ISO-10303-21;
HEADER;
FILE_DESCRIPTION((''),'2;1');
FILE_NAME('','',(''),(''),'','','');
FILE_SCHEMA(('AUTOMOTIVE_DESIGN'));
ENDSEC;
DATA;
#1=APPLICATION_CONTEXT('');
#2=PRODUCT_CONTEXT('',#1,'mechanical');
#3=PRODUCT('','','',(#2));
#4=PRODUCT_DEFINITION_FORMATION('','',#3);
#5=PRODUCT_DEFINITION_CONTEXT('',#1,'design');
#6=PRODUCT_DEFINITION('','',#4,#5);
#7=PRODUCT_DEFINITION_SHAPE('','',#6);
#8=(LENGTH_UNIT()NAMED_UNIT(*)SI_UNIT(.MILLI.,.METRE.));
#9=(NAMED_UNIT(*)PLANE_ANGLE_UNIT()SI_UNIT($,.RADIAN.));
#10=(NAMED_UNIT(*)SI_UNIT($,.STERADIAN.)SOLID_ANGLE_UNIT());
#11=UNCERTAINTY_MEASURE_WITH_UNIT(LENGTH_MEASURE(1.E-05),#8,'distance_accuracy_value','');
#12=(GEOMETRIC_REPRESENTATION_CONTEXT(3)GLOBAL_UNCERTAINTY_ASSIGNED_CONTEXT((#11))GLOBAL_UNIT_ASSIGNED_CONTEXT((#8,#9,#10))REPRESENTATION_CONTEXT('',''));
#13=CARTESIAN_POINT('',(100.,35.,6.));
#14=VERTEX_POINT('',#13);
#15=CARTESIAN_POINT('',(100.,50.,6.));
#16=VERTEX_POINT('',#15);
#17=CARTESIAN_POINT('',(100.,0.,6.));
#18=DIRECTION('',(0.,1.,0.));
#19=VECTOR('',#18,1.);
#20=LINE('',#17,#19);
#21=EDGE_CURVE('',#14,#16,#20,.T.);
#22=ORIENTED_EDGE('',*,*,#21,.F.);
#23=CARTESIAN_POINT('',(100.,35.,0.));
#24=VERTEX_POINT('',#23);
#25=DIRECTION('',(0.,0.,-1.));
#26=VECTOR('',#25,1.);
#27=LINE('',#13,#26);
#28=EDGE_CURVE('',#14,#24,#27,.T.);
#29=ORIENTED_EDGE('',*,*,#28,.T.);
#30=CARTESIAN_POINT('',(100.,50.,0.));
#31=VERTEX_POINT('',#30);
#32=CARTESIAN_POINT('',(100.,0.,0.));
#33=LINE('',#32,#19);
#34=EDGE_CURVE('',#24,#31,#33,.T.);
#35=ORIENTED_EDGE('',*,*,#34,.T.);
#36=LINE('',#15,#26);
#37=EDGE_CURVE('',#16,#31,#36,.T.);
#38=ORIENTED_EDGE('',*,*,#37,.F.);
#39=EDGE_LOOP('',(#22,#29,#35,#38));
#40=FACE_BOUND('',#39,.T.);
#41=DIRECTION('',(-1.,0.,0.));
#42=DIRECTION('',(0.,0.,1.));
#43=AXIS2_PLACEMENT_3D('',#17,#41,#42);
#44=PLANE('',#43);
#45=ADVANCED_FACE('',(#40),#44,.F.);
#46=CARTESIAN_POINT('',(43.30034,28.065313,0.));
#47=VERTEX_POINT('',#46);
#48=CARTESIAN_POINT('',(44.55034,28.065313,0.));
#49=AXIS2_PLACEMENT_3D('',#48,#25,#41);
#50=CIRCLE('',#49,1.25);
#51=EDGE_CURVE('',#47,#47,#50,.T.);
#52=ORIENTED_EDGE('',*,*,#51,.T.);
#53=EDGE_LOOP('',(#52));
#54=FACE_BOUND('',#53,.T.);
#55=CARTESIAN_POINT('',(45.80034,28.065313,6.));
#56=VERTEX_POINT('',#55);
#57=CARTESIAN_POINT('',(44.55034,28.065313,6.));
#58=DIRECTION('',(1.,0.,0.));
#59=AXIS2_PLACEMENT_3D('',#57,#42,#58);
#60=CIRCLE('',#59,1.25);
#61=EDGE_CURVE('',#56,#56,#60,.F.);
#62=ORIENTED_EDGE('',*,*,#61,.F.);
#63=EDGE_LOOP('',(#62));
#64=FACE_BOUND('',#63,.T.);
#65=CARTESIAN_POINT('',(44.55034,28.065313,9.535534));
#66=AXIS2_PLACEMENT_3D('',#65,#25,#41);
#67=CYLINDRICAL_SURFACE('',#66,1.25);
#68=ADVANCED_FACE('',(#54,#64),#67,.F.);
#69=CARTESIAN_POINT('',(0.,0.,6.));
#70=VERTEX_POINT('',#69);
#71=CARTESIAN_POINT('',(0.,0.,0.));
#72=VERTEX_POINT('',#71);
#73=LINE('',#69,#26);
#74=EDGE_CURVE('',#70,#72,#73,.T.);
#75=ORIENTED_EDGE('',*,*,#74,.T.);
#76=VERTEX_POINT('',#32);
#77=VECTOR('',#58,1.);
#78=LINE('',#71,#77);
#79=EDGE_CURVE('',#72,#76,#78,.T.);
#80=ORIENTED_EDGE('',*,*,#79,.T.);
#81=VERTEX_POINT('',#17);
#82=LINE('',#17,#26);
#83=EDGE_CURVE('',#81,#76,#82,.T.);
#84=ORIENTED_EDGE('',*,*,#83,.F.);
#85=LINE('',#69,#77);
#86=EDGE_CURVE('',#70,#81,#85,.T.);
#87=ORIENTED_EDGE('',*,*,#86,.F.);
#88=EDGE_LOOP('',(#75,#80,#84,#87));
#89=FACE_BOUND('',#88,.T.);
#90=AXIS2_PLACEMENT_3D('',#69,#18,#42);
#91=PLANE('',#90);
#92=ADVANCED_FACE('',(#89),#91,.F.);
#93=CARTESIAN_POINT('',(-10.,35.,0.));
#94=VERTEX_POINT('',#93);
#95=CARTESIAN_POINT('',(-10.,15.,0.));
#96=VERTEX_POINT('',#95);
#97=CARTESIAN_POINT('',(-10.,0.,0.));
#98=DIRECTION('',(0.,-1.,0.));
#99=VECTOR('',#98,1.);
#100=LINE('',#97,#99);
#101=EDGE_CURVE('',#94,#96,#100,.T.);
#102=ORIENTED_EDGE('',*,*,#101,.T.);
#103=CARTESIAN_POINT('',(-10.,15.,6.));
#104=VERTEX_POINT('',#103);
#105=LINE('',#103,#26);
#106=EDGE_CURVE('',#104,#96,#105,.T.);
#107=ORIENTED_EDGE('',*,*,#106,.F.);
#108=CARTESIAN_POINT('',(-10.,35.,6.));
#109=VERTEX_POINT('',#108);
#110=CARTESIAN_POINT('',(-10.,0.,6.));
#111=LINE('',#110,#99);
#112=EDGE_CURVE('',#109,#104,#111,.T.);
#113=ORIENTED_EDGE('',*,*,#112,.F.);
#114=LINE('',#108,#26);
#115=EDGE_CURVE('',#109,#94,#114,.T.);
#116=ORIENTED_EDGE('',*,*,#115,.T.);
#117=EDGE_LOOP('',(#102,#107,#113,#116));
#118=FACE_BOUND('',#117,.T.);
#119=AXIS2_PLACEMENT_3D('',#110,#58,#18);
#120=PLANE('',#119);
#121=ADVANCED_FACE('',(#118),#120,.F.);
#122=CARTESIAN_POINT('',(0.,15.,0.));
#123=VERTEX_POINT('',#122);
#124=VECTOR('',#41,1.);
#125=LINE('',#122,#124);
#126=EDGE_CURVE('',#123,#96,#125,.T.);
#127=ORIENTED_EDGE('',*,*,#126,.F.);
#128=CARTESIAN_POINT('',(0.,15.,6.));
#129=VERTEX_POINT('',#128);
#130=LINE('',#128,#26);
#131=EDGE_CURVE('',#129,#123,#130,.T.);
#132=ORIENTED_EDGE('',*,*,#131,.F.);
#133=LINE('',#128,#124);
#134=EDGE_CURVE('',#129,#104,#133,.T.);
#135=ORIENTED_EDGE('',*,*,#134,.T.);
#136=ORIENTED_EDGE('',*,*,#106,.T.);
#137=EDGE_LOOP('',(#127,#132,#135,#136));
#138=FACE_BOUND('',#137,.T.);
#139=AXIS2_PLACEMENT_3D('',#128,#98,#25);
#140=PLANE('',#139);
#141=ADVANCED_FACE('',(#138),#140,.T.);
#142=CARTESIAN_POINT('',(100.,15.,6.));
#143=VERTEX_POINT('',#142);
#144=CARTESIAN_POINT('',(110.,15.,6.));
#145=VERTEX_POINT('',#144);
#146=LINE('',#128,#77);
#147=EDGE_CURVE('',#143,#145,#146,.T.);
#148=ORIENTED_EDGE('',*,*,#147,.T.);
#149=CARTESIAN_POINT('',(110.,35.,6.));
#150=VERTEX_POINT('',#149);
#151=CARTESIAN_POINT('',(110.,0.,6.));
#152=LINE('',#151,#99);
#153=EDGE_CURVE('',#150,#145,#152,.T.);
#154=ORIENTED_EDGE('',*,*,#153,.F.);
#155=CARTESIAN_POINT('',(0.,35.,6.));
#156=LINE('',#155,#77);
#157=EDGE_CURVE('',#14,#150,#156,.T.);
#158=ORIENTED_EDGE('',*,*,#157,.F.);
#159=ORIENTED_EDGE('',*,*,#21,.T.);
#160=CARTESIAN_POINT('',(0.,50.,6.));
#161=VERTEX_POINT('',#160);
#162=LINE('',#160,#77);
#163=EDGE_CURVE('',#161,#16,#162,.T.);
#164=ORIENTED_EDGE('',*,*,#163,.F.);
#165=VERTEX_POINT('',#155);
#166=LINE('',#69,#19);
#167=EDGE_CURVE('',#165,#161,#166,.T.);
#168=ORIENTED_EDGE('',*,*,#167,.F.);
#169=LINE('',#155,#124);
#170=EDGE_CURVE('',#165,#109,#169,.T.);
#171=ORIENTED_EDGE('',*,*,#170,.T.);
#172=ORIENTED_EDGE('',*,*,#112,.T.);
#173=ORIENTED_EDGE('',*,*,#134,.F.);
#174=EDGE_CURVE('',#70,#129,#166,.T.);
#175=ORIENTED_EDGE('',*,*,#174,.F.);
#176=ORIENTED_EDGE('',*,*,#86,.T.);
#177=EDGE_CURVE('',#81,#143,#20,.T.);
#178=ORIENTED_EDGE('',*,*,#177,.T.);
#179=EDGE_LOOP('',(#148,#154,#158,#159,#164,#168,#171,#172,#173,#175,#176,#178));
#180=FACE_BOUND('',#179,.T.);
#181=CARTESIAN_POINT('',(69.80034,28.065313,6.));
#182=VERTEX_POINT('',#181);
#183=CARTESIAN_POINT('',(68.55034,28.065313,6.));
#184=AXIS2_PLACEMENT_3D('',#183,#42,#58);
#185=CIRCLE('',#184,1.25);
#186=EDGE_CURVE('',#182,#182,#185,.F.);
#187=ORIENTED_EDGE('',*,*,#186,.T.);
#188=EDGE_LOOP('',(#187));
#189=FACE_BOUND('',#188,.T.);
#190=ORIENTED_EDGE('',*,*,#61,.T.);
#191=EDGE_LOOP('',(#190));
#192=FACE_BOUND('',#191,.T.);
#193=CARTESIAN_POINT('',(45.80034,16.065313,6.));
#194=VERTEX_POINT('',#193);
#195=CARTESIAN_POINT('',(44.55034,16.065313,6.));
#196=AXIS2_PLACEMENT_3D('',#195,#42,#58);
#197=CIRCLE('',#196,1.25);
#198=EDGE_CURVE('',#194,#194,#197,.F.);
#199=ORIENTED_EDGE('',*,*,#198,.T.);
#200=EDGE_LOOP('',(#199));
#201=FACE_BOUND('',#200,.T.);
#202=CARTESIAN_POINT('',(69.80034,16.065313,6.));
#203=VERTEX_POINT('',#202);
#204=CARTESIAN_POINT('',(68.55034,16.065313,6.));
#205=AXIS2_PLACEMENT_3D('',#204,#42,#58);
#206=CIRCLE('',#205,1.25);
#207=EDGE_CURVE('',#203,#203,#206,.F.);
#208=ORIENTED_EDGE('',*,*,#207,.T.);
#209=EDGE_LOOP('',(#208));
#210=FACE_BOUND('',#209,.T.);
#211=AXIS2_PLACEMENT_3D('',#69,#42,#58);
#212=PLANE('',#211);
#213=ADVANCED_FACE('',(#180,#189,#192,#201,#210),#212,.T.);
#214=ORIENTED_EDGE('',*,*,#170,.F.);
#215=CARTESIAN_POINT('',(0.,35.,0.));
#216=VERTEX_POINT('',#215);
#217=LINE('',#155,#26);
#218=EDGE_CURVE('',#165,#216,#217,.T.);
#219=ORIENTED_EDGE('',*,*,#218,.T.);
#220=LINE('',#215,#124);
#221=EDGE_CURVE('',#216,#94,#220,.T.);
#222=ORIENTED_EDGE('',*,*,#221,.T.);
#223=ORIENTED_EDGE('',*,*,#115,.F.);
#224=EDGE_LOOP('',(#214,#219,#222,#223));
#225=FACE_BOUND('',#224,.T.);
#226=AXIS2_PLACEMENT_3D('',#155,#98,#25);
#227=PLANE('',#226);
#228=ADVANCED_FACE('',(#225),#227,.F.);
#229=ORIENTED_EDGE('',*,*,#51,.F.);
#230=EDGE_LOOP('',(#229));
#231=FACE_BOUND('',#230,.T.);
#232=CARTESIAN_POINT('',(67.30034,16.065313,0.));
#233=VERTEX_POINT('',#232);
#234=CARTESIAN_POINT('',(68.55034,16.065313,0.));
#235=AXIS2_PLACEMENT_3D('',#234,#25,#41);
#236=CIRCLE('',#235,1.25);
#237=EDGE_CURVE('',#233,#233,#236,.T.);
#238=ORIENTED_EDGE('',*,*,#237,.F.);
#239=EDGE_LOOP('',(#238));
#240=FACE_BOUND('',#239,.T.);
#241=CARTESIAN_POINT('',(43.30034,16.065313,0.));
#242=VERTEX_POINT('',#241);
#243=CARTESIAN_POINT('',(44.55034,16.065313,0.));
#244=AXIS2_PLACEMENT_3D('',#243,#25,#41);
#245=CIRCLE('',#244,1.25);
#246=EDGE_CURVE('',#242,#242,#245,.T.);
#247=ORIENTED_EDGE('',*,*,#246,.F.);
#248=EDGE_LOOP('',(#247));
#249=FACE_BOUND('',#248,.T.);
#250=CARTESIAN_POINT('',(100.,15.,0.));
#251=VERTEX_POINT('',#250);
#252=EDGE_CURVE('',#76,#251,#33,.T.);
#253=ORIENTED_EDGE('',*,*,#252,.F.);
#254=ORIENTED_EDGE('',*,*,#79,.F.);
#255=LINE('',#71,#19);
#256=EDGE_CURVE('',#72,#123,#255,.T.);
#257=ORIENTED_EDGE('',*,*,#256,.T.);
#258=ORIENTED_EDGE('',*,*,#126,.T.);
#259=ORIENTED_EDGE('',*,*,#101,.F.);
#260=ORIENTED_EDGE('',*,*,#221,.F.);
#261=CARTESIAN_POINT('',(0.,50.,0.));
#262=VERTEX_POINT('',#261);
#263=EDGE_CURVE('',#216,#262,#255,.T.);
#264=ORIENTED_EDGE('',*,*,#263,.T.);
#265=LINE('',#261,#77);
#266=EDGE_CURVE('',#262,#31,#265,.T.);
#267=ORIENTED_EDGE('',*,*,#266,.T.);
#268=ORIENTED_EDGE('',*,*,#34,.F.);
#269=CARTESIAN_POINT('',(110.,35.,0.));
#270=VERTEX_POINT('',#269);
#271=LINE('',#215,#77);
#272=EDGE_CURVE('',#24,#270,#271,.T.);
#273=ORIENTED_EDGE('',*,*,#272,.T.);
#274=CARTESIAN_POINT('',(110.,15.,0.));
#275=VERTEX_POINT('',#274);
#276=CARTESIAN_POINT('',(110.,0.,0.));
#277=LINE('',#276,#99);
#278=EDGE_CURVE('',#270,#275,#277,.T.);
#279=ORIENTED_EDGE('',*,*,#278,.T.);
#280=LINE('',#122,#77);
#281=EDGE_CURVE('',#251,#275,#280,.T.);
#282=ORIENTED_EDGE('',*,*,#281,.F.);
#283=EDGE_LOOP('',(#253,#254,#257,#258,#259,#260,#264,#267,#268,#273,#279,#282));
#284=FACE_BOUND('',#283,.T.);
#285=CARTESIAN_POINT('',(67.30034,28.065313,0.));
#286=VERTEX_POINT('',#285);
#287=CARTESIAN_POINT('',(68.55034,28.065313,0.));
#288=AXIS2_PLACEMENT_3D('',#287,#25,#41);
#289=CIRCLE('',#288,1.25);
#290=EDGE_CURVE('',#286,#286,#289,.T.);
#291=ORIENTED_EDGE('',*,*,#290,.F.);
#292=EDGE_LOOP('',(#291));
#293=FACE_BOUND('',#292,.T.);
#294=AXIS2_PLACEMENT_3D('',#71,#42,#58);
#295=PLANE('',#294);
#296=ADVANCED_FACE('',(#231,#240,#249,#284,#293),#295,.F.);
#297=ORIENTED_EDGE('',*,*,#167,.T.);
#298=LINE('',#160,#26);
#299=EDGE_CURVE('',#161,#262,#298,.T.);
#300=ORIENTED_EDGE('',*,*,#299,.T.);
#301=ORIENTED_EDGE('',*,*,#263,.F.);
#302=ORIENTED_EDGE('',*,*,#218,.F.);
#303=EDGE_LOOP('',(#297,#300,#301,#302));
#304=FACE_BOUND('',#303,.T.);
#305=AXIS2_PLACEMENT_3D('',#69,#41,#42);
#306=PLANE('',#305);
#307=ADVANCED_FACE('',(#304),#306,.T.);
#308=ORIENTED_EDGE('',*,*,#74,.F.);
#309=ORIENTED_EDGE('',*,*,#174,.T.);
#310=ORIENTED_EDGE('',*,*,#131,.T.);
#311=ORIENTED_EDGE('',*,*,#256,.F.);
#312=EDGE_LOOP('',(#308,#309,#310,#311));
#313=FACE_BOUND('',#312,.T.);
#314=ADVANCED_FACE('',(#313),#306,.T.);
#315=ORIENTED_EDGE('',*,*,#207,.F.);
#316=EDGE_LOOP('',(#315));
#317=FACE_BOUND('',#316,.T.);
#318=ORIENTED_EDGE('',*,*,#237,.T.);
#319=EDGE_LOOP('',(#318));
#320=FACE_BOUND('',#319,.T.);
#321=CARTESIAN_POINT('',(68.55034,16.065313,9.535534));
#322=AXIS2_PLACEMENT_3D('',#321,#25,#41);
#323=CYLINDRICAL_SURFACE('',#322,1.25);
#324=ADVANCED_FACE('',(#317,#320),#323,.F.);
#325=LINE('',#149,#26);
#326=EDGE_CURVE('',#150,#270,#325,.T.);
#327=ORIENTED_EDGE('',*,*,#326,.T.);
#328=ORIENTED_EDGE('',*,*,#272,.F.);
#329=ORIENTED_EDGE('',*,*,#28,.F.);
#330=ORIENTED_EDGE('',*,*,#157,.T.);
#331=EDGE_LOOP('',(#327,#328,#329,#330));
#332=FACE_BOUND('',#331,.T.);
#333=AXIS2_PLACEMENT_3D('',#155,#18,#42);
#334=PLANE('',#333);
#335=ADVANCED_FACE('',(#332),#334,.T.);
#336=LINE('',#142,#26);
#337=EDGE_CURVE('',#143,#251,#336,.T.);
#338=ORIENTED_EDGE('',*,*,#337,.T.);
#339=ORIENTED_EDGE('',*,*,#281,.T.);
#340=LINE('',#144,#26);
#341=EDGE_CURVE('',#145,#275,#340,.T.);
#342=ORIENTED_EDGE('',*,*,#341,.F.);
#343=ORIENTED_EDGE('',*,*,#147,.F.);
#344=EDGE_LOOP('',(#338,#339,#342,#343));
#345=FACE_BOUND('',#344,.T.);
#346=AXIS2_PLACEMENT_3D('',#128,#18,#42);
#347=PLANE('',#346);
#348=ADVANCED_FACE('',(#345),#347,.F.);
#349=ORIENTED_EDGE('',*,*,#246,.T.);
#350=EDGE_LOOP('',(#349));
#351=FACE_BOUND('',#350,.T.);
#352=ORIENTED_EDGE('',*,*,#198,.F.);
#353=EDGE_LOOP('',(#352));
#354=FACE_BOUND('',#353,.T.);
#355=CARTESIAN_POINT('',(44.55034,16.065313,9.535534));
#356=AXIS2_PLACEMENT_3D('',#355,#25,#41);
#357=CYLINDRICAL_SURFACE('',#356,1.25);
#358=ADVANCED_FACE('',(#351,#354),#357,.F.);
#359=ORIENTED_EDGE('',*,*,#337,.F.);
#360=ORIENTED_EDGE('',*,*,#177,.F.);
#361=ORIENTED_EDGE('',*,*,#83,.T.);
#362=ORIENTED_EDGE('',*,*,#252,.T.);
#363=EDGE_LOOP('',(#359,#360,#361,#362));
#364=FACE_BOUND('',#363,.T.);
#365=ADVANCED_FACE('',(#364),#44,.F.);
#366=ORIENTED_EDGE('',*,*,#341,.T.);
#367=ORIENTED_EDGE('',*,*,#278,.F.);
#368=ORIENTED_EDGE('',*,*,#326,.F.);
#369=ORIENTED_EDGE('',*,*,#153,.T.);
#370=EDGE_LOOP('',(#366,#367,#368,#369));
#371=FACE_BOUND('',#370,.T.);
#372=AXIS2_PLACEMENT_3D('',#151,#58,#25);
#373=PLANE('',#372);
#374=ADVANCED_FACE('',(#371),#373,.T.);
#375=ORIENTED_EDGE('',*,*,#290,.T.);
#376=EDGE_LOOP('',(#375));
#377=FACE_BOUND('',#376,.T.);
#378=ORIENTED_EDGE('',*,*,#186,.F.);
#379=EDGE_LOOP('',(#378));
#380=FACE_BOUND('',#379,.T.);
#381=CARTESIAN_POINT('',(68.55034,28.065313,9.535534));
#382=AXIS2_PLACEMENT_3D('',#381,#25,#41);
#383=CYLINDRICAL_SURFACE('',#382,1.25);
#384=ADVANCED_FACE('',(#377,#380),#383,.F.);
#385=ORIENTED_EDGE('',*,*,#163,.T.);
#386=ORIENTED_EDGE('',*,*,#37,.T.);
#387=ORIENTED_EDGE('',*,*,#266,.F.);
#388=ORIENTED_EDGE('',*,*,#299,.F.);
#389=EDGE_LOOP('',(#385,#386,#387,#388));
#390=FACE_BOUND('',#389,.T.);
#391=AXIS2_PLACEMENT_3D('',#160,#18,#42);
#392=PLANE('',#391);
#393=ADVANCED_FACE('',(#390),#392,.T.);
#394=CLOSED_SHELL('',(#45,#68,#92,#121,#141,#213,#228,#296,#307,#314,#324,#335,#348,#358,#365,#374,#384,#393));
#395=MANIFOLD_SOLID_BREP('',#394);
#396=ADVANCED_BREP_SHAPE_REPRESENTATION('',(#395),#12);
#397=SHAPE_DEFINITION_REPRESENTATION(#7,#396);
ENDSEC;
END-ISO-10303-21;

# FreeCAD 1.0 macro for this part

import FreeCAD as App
import Part
import Sketcher
Q = App.Units.Quantity

doc = App.newDocument("Part")
params = doc.addObject("Spreadsheet::Sheet", "Params")
for row, (alias, value) in enumerate([
    ("sketch1_width", "10 mm"),
    ("sketch1_width2", "100 mm"),
    ("sketch1_height", "20 mm"),
    ("sketch1_height2", "15 mm"),
    ("pad1_length", "6 mm"),
    ("sketch2_diameter", "2.5 mm"),
    ("pocket1_length", "6 mm"),
], start=1):
    params.set(f"A{row}", alias)
    params.set(f"B{row}", "=" + value)
    params.setAlias(f"B{row}", alias)

body = doc.addObject("PartDesign::Body", "Body")

sketch1 = body.newObject("Sketcher::SketchObject", "Sketch")
sketch1.AttachmentSupport = (doc.getObject("XY_Plane"), [""])
sketch1.MapMode = "FlatFace"
sketch1.addGeometry(Part.LineSegment(App.Vector(-10, 35, 0), App.Vector(-10, 15, 0)), False)
sketch1.addGeometry(Part.LineSegment(App.Vector(-10, 15, 0), App.Vector(0, 15, 0)), False)
sketch1.addGeometry(Part.LineSegment(App.Vector(0, 15, 0), App.Vector(0, 0, 0)), False)
sketch1.addGeometry(Part.LineSegment(App.Vector(0, 0, 0), App.Vector(100, 0, 0)), False)
sketch1.addGeometry(Part.LineSegment(App.Vector(100, 0, 0), App.Vector(100, 15, 0)), False)
sketch1.addGeometry(Part.LineSegment(App.Vector(100, 15, 0), App.Vector(110, 15, 0)), False)
sketch1.addGeometry(Part.LineSegment(App.Vector(110, 15, 0), App.Vector(110, 35, 0)), False)
sketch1.addGeometry(Part.LineSegment(App.Vector(110, 35, 0), App.Vector(100, 35, 0)), False)
sketch1.addGeometry(Part.LineSegment(App.Vector(100, 35, 0), App.Vector(100, 50, 0)), False)
sketch1.addGeometry(Part.LineSegment(App.Vector(100, 50, 0), App.Vector(0, 50, 0)), False)
sketch1.addGeometry(Part.LineSegment(App.Vector(0, 50, 0), App.Vector(0, 35, 0)), False)
sketch1.addGeometry(Part.LineSegment(App.Vector(0, 35, 0), App.Vector(-10, 35, 0)), False)
sketch1.addConstraint(Sketcher.Constraint("Coincident", 0, 2, 1, 1))
sketch1.addConstraint(Sketcher.Constraint("Coincident", 1, 2, 2, 1))
sketch1.addConstraint(Sketcher.Constraint("Coincident", 2, 2, 3, 1))
sketch1.addConstraint(Sketcher.Constraint("Coincident", 3, 2, 4, 1))
sketch1.addConstraint(Sketcher.Constraint("Coincident", 4, 2, 5, 1))
sketch1.addConstraint(Sketcher.Constraint("Coincident", 5, 2, 6, 1))
sketch1.addConstraint(Sketcher.Constraint("Coincident", 6, 2, 7, 1))
sketch1.addConstraint(Sketcher.Constraint("Coincident", 7, 2, 8, 1))
sketch1.addConstraint(Sketcher.Constraint("Coincident", 8, 2, 9, 1))
sketch1.addConstraint(Sketcher.Constraint("Coincident", 9, 2, 10, 1))
sketch1.addConstraint(Sketcher.Constraint("Coincident", 10, 2, 11, 1))
sketch1.addConstraint(Sketcher.Constraint("Coincident", 11, 2, 0, 1))
sketch1.addConstraint(Sketcher.Constraint("Vertical", 0))
sketch1.addConstraint(Sketcher.Constraint("Horizontal", 1))
sketch1.addConstraint(Sketcher.Constraint("Vertical", 2))
sketch1.addConstraint(Sketcher.Constraint("Horizontal", 3))
sketch1.addConstraint(Sketcher.Constraint("Vertical", 4))
sketch1.addConstraint(Sketcher.Constraint("Horizontal", 5))
sketch1.addConstraint(Sketcher.Constraint("Vertical", 6))
sketch1.addConstraint(Sketcher.Constraint("Horizontal", 7))
sketch1.addConstraint(Sketcher.Constraint("Vertical", 8))
sketch1.addConstraint(Sketcher.Constraint("Horizontal", 9))
sketch1.addConstraint(Sketcher.Constraint("Vertical", 10))
sketch1.addConstraint(Sketcher.Constraint("Horizontal", 11))
sketch1.addConstraint(Sketcher.Constraint("Coincident", 2, 2, -1, 1))
sketch1.addConstraint(Sketcher.Constraint("PointOnObject", 9, 2, -2))
sketch1.addConstraint(Sketcher.Constraint("Horizontal", 1, 2, 4, 2))
sketch1.addConstraint(Sketcher.Constraint("Horizontal", 7, 2, 10, 2))
sketch1.addConstraint(Sketcher.Constraint("Vertical", 4, 2, 7, 2))
sketch1.addConstraint(Sketcher.Constraint("Equal", 1, 5))
sketch1.addConstraint(Sketcher.Constraint("Equal", 4, 8))
sketch1.addConstraint(Sketcher.Constraint("DistanceX", 1, 1, 1, 2, Q("10 mm")))
sketch1.addConstraint(Sketcher.Constraint("DistanceX", 3, 1, 3, 2, Q("100 mm")))
sketch1.addConstraint(Sketcher.Constraint("DistanceY", 0, 2, 0, 1, Q("20 mm")))
sketch1.addConstraint(Sketcher.Constraint("DistanceY", 2, 2, 2, 1, Q("15 mm")))
sketch1.setExpression("Constraints[31]", "Params.sketch1_width")
sketch1.setExpression("Constraints[32]", "Params.sketch1_width2")
sketch1.setExpression("Constraints[33]", "Params.sketch1_height")
sketch1.setExpression("Constraints[34]", "Params.sketch1_height2")
pad1 = body.newObject("PartDesign::Pad", "Pad")
pad1.Profile = sketch1
pad1.setExpression("Length", "Params.pad1_length")

sketch2 = body.newObject("Sketcher::SketchObject", "Sketch001")
sketch2.AttachmentSupport = (doc.getObject("XY_Plane"), [""])
sketch2.MapMode = "FlatFace"
sketch2.addGeometry(Part.Circle(App.Vector(44.6, 16.1, 0), App.Vector(0, 0, 1), 1.2), False)
sketch2.addGeometry(Part.Circle(App.Vector(44.6, 28.1, 0), App.Vector(0, 0, 1), 1.2), False)
sketch2.addGeometry(Part.Circle(App.Vector(68.6, 28.1, 0), App.Vector(0, 0, 1), 1.2), False)
sketch2.addGeometry(Part.Circle(App.Vector(68.6, 16.1, 0), App.Vector(0, 0, 1), 1.2), False)
sketch2.addConstraint(Sketcher.Constraint("Equal", 0, 1))
sketch2.addConstraint(Sketcher.Constraint("Equal", 1, 2))
sketch2.addConstraint(Sketcher.Constraint("Equal", 2, 3))
sketch2.addConstraint(Sketcher.Constraint("Horizontal", 1, 3, 2, 3))
sketch2.addConstraint(Sketcher.Constraint("Horizontal", 0, 3, 3, 3))
sketch2.addConstraint(Sketcher.Constraint("Vertical", 0, 3, 1, 3))
sketch2.addConstraint(Sketcher.Constraint("Vertical", 2, 3, 3, 3))
sketch2.addConstraint(Sketcher.Constraint("Diameter", 0, Q("2.5 mm")))
sketch2.addConstraint(Sketcher.Constraint("DistanceY", 0, 3, 1, 3, Q("12 mm")))
sketch2.addConstraint(Sketcher.Constraint("DistanceX", 1, 3, 2, 3, Q("24 mm")))
sketch2.addConstraint(Sketcher.Constraint("DistanceX", -1, 1, 0, 3, Q("44.55034 mm")))
sketch2.addConstraint(Sketcher.Constraint("DistanceY", -1, 1, 0, 3, Q("16.065313 mm")))
sketch2.setExpression("Constraints[7]", "Params.sketch2_diameter")
pocket1 = body.newObject("PartDesign::Pocket", "Pocket")
pocket1.Profile = sketch2
pocket1.setExpression("Length", "Params.pocket1_length")
pocket1.Reversed = True

doc.recompute()
